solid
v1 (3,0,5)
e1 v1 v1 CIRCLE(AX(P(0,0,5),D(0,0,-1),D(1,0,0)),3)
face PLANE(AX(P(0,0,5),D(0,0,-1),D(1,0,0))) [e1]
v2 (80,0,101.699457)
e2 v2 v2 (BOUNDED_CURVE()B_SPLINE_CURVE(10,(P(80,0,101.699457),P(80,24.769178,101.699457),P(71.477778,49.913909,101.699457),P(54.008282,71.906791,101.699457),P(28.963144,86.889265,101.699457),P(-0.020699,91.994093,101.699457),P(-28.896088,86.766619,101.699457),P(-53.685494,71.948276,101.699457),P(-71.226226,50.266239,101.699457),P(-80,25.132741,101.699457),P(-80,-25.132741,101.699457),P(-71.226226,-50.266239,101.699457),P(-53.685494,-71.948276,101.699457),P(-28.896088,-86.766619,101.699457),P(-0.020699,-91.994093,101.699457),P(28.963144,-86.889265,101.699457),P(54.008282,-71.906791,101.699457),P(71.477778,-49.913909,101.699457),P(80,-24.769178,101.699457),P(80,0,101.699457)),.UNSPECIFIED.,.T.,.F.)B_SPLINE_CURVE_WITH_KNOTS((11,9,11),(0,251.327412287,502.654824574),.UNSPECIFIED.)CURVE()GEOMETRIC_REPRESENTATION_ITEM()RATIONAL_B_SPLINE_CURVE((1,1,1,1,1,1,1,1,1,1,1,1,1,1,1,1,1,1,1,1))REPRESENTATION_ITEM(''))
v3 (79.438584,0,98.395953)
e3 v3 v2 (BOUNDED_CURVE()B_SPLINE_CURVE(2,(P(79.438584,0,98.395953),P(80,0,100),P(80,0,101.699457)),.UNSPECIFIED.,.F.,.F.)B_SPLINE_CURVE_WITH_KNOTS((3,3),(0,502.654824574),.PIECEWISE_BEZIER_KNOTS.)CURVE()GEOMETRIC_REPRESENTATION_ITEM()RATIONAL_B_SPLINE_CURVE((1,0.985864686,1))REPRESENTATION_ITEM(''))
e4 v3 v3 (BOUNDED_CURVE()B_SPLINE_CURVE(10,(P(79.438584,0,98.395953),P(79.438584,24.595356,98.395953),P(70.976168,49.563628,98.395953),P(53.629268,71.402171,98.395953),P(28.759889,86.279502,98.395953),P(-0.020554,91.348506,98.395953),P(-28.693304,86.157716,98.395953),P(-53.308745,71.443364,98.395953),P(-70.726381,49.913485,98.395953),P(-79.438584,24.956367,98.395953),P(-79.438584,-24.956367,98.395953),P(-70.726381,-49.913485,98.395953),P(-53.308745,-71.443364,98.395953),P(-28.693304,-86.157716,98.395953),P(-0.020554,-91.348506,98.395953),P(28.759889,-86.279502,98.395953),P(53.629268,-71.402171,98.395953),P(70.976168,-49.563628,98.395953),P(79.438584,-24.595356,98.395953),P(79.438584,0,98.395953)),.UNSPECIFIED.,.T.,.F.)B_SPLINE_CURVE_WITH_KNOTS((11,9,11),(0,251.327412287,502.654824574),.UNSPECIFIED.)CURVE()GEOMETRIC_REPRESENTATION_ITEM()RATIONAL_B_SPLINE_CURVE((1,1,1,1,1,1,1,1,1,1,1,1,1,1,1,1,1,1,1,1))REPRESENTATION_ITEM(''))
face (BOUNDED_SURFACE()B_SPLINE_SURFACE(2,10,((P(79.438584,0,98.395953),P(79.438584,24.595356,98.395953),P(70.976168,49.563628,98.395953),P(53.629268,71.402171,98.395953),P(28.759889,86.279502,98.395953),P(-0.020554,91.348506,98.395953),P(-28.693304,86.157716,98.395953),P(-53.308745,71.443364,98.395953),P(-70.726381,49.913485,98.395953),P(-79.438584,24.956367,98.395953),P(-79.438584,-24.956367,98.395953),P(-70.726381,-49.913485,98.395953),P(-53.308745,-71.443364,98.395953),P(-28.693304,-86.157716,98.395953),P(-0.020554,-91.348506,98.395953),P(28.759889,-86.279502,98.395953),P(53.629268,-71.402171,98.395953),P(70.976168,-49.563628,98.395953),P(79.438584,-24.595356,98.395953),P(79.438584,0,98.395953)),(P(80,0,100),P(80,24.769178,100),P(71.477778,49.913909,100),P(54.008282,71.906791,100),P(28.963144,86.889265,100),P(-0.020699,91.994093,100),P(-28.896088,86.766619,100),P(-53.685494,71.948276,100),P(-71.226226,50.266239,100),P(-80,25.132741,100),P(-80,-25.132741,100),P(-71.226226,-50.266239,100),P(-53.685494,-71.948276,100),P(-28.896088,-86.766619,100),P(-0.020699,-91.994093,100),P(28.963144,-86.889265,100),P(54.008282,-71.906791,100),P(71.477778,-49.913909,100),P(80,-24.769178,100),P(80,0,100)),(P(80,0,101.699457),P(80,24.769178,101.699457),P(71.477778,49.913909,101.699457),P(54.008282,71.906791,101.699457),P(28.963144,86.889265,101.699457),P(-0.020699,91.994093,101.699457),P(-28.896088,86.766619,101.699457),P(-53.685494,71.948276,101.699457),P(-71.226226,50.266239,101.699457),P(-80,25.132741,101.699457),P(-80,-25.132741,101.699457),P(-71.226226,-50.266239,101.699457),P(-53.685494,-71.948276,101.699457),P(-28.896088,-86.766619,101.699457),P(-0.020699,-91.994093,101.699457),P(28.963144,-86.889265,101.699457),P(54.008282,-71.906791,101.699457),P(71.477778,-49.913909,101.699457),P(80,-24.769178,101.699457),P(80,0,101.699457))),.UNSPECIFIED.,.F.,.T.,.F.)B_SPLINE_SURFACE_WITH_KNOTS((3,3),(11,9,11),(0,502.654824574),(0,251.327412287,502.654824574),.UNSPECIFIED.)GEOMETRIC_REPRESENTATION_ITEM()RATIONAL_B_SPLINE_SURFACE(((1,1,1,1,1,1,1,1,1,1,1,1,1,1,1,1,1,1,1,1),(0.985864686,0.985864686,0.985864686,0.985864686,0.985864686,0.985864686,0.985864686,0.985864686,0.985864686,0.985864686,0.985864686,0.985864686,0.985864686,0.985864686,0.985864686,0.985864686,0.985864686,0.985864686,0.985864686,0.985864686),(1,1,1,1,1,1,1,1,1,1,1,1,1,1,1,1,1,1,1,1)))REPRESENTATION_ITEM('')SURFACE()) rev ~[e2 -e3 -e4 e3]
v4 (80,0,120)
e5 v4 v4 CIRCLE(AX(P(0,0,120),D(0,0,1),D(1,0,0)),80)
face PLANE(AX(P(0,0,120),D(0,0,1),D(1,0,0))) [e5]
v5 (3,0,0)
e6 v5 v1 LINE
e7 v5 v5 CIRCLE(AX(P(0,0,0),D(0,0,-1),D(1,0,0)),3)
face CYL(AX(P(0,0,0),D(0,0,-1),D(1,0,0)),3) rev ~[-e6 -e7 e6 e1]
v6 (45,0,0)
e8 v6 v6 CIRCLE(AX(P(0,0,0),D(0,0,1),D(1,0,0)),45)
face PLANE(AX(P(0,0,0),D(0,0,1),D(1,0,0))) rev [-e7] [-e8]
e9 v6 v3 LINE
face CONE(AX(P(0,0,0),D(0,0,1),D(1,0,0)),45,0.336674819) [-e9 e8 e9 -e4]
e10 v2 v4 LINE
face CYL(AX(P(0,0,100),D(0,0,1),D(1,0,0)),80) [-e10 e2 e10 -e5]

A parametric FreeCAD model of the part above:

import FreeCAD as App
import Part
import Sketcher
from FreeCAD import Vector
Q = App.Units.Quantity


def edges_at(feature, points):
    """Names of the edges that pass closest to the given points."""
    edges = feature.Shape.Edges
    near = lambda p: min(range(len(edges)), key=lambda i: edges[i].distToShape(Part.Vertex(*p))[0])
    return sorted({f"Edge{near(p) + 1}" for p in points})

doc = App.newDocument("Part")
body = doc.addObject("PartDesign::Body", "Body")

sketch1 = doc.addObject("Sketcher::SketchObject", "Sketch")
body.addObject(sketch1)
sketch1.AttachmentSupport = (doc.XZ_Plane, [""])
sketch1.MapMode = "FlatFace"
sketch1.addGeometry(Part.LineSegment(Vector(0, 120, 0), Vector(0, 0, 0)), False)
sketch1.addGeometry(Part.LineSegment(Vector(0, 0, 0), Vector(45, 0, 0)), False)
sketch1.addGeometry(Part.LineSegment(Vector(45, 0, 0), Vector(80, 100, 0)), False)
sketch1.addGeometry(Part.LineSegment(Vector(80, 100, 0), Vector(80, 120, 0)), False)
sketch1.addGeometry(Part.LineSegment(Vector(80, 120, 0), Vector(0, 120, 0)), False)
sketch1.addConstraint(Sketcher.Constraint("Coincident", 0, 2, 1, 1))
sketch1.addConstraint(Sketcher.Constraint("Coincident", 1, 2, 2, 1))
sketch1.addConstraint(Sketcher.Constraint("Coincident", 2, 2, 3, 1))
sketch1.addConstraint(Sketcher.Constraint("Coincident", 3, 2, 4, 1))
sketch1.addConstraint(Sketcher.Constraint("Coincident", 4, 2, 0, 1))
sketch1.addConstraint(Sketcher.Constraint("Vertical", 0))
sketch1.addConstraint(Sketcher.Constraint("Horizontal", 1))
sketch1.addConstraint(Sketcher.Constraint("Vertical", 3))
sketch1.addConstraint(Sketcher.Constraint("Horizontal", 4))
sketch1.addConstraint(Sketcher.Constraint("Coincident", 0, 2, -1, 1))
sketch1.addConstraint(Sketcher.Constraint("DistanceX", 1, 1, 1, 2, Q("45 mm")))
sketch1.addConstraint(Sketcher.Constraint("DistanceX", 4, 2, 4, 1, Q("80 mm")))
sketch1.addConstraint(Sketcher.Constraint("DistanceY", 0, 2, 0, 1, Q("120 mm")))
sketch1.addConstraint(Sketcher.Constraint("DistanceY", 3, 1, 3, 2, Q("20 mm")))
revolution = doc.addObject("PartDesign::Revolution", "Revolution")
body.addObject(revolution)
revolution.Profile = sketch1
revolution.ReferenceAxis = (sketch1, ["V_Axis"])
revolution.Angle = 360

sketch2 = doc.addObject("Sketcher::SketchObject", "Sketch001")
body.addObject(sketch2)
sketch2.AttachmentSupport = (doc.XY_Plane, [""])
sketch2.MapMode = "FlatFace"
sketch2.addGeometry(Part.Circle(Vector(0, 0, 0), Vector(0, 0, 1), 3), False)
sketch2.addConstraint(Sketcher.Constraint("Coincident", 0, 3, -1, 1))
sketch2.addConstraint(Sketcher.Constraint("Diameter", 0, Q("6 mm")))
pocket1 = doc.addObject("PartDesign::Pocket", "Pocket")
body.addObject(pocket1)
pocket1.Profile = sketch2
pocket1.Length = 5
pocket1.Reversed = True
doc.recompute()

fillet = doc.addObject("PartDesign::Fillet", "Fillet")
body.addObject(fillet)
fillet.Base = (pocket1, edges_at(pocket1, [(-80, 0, 100)]))
fillet.Radius = 10

doc.recompute()
